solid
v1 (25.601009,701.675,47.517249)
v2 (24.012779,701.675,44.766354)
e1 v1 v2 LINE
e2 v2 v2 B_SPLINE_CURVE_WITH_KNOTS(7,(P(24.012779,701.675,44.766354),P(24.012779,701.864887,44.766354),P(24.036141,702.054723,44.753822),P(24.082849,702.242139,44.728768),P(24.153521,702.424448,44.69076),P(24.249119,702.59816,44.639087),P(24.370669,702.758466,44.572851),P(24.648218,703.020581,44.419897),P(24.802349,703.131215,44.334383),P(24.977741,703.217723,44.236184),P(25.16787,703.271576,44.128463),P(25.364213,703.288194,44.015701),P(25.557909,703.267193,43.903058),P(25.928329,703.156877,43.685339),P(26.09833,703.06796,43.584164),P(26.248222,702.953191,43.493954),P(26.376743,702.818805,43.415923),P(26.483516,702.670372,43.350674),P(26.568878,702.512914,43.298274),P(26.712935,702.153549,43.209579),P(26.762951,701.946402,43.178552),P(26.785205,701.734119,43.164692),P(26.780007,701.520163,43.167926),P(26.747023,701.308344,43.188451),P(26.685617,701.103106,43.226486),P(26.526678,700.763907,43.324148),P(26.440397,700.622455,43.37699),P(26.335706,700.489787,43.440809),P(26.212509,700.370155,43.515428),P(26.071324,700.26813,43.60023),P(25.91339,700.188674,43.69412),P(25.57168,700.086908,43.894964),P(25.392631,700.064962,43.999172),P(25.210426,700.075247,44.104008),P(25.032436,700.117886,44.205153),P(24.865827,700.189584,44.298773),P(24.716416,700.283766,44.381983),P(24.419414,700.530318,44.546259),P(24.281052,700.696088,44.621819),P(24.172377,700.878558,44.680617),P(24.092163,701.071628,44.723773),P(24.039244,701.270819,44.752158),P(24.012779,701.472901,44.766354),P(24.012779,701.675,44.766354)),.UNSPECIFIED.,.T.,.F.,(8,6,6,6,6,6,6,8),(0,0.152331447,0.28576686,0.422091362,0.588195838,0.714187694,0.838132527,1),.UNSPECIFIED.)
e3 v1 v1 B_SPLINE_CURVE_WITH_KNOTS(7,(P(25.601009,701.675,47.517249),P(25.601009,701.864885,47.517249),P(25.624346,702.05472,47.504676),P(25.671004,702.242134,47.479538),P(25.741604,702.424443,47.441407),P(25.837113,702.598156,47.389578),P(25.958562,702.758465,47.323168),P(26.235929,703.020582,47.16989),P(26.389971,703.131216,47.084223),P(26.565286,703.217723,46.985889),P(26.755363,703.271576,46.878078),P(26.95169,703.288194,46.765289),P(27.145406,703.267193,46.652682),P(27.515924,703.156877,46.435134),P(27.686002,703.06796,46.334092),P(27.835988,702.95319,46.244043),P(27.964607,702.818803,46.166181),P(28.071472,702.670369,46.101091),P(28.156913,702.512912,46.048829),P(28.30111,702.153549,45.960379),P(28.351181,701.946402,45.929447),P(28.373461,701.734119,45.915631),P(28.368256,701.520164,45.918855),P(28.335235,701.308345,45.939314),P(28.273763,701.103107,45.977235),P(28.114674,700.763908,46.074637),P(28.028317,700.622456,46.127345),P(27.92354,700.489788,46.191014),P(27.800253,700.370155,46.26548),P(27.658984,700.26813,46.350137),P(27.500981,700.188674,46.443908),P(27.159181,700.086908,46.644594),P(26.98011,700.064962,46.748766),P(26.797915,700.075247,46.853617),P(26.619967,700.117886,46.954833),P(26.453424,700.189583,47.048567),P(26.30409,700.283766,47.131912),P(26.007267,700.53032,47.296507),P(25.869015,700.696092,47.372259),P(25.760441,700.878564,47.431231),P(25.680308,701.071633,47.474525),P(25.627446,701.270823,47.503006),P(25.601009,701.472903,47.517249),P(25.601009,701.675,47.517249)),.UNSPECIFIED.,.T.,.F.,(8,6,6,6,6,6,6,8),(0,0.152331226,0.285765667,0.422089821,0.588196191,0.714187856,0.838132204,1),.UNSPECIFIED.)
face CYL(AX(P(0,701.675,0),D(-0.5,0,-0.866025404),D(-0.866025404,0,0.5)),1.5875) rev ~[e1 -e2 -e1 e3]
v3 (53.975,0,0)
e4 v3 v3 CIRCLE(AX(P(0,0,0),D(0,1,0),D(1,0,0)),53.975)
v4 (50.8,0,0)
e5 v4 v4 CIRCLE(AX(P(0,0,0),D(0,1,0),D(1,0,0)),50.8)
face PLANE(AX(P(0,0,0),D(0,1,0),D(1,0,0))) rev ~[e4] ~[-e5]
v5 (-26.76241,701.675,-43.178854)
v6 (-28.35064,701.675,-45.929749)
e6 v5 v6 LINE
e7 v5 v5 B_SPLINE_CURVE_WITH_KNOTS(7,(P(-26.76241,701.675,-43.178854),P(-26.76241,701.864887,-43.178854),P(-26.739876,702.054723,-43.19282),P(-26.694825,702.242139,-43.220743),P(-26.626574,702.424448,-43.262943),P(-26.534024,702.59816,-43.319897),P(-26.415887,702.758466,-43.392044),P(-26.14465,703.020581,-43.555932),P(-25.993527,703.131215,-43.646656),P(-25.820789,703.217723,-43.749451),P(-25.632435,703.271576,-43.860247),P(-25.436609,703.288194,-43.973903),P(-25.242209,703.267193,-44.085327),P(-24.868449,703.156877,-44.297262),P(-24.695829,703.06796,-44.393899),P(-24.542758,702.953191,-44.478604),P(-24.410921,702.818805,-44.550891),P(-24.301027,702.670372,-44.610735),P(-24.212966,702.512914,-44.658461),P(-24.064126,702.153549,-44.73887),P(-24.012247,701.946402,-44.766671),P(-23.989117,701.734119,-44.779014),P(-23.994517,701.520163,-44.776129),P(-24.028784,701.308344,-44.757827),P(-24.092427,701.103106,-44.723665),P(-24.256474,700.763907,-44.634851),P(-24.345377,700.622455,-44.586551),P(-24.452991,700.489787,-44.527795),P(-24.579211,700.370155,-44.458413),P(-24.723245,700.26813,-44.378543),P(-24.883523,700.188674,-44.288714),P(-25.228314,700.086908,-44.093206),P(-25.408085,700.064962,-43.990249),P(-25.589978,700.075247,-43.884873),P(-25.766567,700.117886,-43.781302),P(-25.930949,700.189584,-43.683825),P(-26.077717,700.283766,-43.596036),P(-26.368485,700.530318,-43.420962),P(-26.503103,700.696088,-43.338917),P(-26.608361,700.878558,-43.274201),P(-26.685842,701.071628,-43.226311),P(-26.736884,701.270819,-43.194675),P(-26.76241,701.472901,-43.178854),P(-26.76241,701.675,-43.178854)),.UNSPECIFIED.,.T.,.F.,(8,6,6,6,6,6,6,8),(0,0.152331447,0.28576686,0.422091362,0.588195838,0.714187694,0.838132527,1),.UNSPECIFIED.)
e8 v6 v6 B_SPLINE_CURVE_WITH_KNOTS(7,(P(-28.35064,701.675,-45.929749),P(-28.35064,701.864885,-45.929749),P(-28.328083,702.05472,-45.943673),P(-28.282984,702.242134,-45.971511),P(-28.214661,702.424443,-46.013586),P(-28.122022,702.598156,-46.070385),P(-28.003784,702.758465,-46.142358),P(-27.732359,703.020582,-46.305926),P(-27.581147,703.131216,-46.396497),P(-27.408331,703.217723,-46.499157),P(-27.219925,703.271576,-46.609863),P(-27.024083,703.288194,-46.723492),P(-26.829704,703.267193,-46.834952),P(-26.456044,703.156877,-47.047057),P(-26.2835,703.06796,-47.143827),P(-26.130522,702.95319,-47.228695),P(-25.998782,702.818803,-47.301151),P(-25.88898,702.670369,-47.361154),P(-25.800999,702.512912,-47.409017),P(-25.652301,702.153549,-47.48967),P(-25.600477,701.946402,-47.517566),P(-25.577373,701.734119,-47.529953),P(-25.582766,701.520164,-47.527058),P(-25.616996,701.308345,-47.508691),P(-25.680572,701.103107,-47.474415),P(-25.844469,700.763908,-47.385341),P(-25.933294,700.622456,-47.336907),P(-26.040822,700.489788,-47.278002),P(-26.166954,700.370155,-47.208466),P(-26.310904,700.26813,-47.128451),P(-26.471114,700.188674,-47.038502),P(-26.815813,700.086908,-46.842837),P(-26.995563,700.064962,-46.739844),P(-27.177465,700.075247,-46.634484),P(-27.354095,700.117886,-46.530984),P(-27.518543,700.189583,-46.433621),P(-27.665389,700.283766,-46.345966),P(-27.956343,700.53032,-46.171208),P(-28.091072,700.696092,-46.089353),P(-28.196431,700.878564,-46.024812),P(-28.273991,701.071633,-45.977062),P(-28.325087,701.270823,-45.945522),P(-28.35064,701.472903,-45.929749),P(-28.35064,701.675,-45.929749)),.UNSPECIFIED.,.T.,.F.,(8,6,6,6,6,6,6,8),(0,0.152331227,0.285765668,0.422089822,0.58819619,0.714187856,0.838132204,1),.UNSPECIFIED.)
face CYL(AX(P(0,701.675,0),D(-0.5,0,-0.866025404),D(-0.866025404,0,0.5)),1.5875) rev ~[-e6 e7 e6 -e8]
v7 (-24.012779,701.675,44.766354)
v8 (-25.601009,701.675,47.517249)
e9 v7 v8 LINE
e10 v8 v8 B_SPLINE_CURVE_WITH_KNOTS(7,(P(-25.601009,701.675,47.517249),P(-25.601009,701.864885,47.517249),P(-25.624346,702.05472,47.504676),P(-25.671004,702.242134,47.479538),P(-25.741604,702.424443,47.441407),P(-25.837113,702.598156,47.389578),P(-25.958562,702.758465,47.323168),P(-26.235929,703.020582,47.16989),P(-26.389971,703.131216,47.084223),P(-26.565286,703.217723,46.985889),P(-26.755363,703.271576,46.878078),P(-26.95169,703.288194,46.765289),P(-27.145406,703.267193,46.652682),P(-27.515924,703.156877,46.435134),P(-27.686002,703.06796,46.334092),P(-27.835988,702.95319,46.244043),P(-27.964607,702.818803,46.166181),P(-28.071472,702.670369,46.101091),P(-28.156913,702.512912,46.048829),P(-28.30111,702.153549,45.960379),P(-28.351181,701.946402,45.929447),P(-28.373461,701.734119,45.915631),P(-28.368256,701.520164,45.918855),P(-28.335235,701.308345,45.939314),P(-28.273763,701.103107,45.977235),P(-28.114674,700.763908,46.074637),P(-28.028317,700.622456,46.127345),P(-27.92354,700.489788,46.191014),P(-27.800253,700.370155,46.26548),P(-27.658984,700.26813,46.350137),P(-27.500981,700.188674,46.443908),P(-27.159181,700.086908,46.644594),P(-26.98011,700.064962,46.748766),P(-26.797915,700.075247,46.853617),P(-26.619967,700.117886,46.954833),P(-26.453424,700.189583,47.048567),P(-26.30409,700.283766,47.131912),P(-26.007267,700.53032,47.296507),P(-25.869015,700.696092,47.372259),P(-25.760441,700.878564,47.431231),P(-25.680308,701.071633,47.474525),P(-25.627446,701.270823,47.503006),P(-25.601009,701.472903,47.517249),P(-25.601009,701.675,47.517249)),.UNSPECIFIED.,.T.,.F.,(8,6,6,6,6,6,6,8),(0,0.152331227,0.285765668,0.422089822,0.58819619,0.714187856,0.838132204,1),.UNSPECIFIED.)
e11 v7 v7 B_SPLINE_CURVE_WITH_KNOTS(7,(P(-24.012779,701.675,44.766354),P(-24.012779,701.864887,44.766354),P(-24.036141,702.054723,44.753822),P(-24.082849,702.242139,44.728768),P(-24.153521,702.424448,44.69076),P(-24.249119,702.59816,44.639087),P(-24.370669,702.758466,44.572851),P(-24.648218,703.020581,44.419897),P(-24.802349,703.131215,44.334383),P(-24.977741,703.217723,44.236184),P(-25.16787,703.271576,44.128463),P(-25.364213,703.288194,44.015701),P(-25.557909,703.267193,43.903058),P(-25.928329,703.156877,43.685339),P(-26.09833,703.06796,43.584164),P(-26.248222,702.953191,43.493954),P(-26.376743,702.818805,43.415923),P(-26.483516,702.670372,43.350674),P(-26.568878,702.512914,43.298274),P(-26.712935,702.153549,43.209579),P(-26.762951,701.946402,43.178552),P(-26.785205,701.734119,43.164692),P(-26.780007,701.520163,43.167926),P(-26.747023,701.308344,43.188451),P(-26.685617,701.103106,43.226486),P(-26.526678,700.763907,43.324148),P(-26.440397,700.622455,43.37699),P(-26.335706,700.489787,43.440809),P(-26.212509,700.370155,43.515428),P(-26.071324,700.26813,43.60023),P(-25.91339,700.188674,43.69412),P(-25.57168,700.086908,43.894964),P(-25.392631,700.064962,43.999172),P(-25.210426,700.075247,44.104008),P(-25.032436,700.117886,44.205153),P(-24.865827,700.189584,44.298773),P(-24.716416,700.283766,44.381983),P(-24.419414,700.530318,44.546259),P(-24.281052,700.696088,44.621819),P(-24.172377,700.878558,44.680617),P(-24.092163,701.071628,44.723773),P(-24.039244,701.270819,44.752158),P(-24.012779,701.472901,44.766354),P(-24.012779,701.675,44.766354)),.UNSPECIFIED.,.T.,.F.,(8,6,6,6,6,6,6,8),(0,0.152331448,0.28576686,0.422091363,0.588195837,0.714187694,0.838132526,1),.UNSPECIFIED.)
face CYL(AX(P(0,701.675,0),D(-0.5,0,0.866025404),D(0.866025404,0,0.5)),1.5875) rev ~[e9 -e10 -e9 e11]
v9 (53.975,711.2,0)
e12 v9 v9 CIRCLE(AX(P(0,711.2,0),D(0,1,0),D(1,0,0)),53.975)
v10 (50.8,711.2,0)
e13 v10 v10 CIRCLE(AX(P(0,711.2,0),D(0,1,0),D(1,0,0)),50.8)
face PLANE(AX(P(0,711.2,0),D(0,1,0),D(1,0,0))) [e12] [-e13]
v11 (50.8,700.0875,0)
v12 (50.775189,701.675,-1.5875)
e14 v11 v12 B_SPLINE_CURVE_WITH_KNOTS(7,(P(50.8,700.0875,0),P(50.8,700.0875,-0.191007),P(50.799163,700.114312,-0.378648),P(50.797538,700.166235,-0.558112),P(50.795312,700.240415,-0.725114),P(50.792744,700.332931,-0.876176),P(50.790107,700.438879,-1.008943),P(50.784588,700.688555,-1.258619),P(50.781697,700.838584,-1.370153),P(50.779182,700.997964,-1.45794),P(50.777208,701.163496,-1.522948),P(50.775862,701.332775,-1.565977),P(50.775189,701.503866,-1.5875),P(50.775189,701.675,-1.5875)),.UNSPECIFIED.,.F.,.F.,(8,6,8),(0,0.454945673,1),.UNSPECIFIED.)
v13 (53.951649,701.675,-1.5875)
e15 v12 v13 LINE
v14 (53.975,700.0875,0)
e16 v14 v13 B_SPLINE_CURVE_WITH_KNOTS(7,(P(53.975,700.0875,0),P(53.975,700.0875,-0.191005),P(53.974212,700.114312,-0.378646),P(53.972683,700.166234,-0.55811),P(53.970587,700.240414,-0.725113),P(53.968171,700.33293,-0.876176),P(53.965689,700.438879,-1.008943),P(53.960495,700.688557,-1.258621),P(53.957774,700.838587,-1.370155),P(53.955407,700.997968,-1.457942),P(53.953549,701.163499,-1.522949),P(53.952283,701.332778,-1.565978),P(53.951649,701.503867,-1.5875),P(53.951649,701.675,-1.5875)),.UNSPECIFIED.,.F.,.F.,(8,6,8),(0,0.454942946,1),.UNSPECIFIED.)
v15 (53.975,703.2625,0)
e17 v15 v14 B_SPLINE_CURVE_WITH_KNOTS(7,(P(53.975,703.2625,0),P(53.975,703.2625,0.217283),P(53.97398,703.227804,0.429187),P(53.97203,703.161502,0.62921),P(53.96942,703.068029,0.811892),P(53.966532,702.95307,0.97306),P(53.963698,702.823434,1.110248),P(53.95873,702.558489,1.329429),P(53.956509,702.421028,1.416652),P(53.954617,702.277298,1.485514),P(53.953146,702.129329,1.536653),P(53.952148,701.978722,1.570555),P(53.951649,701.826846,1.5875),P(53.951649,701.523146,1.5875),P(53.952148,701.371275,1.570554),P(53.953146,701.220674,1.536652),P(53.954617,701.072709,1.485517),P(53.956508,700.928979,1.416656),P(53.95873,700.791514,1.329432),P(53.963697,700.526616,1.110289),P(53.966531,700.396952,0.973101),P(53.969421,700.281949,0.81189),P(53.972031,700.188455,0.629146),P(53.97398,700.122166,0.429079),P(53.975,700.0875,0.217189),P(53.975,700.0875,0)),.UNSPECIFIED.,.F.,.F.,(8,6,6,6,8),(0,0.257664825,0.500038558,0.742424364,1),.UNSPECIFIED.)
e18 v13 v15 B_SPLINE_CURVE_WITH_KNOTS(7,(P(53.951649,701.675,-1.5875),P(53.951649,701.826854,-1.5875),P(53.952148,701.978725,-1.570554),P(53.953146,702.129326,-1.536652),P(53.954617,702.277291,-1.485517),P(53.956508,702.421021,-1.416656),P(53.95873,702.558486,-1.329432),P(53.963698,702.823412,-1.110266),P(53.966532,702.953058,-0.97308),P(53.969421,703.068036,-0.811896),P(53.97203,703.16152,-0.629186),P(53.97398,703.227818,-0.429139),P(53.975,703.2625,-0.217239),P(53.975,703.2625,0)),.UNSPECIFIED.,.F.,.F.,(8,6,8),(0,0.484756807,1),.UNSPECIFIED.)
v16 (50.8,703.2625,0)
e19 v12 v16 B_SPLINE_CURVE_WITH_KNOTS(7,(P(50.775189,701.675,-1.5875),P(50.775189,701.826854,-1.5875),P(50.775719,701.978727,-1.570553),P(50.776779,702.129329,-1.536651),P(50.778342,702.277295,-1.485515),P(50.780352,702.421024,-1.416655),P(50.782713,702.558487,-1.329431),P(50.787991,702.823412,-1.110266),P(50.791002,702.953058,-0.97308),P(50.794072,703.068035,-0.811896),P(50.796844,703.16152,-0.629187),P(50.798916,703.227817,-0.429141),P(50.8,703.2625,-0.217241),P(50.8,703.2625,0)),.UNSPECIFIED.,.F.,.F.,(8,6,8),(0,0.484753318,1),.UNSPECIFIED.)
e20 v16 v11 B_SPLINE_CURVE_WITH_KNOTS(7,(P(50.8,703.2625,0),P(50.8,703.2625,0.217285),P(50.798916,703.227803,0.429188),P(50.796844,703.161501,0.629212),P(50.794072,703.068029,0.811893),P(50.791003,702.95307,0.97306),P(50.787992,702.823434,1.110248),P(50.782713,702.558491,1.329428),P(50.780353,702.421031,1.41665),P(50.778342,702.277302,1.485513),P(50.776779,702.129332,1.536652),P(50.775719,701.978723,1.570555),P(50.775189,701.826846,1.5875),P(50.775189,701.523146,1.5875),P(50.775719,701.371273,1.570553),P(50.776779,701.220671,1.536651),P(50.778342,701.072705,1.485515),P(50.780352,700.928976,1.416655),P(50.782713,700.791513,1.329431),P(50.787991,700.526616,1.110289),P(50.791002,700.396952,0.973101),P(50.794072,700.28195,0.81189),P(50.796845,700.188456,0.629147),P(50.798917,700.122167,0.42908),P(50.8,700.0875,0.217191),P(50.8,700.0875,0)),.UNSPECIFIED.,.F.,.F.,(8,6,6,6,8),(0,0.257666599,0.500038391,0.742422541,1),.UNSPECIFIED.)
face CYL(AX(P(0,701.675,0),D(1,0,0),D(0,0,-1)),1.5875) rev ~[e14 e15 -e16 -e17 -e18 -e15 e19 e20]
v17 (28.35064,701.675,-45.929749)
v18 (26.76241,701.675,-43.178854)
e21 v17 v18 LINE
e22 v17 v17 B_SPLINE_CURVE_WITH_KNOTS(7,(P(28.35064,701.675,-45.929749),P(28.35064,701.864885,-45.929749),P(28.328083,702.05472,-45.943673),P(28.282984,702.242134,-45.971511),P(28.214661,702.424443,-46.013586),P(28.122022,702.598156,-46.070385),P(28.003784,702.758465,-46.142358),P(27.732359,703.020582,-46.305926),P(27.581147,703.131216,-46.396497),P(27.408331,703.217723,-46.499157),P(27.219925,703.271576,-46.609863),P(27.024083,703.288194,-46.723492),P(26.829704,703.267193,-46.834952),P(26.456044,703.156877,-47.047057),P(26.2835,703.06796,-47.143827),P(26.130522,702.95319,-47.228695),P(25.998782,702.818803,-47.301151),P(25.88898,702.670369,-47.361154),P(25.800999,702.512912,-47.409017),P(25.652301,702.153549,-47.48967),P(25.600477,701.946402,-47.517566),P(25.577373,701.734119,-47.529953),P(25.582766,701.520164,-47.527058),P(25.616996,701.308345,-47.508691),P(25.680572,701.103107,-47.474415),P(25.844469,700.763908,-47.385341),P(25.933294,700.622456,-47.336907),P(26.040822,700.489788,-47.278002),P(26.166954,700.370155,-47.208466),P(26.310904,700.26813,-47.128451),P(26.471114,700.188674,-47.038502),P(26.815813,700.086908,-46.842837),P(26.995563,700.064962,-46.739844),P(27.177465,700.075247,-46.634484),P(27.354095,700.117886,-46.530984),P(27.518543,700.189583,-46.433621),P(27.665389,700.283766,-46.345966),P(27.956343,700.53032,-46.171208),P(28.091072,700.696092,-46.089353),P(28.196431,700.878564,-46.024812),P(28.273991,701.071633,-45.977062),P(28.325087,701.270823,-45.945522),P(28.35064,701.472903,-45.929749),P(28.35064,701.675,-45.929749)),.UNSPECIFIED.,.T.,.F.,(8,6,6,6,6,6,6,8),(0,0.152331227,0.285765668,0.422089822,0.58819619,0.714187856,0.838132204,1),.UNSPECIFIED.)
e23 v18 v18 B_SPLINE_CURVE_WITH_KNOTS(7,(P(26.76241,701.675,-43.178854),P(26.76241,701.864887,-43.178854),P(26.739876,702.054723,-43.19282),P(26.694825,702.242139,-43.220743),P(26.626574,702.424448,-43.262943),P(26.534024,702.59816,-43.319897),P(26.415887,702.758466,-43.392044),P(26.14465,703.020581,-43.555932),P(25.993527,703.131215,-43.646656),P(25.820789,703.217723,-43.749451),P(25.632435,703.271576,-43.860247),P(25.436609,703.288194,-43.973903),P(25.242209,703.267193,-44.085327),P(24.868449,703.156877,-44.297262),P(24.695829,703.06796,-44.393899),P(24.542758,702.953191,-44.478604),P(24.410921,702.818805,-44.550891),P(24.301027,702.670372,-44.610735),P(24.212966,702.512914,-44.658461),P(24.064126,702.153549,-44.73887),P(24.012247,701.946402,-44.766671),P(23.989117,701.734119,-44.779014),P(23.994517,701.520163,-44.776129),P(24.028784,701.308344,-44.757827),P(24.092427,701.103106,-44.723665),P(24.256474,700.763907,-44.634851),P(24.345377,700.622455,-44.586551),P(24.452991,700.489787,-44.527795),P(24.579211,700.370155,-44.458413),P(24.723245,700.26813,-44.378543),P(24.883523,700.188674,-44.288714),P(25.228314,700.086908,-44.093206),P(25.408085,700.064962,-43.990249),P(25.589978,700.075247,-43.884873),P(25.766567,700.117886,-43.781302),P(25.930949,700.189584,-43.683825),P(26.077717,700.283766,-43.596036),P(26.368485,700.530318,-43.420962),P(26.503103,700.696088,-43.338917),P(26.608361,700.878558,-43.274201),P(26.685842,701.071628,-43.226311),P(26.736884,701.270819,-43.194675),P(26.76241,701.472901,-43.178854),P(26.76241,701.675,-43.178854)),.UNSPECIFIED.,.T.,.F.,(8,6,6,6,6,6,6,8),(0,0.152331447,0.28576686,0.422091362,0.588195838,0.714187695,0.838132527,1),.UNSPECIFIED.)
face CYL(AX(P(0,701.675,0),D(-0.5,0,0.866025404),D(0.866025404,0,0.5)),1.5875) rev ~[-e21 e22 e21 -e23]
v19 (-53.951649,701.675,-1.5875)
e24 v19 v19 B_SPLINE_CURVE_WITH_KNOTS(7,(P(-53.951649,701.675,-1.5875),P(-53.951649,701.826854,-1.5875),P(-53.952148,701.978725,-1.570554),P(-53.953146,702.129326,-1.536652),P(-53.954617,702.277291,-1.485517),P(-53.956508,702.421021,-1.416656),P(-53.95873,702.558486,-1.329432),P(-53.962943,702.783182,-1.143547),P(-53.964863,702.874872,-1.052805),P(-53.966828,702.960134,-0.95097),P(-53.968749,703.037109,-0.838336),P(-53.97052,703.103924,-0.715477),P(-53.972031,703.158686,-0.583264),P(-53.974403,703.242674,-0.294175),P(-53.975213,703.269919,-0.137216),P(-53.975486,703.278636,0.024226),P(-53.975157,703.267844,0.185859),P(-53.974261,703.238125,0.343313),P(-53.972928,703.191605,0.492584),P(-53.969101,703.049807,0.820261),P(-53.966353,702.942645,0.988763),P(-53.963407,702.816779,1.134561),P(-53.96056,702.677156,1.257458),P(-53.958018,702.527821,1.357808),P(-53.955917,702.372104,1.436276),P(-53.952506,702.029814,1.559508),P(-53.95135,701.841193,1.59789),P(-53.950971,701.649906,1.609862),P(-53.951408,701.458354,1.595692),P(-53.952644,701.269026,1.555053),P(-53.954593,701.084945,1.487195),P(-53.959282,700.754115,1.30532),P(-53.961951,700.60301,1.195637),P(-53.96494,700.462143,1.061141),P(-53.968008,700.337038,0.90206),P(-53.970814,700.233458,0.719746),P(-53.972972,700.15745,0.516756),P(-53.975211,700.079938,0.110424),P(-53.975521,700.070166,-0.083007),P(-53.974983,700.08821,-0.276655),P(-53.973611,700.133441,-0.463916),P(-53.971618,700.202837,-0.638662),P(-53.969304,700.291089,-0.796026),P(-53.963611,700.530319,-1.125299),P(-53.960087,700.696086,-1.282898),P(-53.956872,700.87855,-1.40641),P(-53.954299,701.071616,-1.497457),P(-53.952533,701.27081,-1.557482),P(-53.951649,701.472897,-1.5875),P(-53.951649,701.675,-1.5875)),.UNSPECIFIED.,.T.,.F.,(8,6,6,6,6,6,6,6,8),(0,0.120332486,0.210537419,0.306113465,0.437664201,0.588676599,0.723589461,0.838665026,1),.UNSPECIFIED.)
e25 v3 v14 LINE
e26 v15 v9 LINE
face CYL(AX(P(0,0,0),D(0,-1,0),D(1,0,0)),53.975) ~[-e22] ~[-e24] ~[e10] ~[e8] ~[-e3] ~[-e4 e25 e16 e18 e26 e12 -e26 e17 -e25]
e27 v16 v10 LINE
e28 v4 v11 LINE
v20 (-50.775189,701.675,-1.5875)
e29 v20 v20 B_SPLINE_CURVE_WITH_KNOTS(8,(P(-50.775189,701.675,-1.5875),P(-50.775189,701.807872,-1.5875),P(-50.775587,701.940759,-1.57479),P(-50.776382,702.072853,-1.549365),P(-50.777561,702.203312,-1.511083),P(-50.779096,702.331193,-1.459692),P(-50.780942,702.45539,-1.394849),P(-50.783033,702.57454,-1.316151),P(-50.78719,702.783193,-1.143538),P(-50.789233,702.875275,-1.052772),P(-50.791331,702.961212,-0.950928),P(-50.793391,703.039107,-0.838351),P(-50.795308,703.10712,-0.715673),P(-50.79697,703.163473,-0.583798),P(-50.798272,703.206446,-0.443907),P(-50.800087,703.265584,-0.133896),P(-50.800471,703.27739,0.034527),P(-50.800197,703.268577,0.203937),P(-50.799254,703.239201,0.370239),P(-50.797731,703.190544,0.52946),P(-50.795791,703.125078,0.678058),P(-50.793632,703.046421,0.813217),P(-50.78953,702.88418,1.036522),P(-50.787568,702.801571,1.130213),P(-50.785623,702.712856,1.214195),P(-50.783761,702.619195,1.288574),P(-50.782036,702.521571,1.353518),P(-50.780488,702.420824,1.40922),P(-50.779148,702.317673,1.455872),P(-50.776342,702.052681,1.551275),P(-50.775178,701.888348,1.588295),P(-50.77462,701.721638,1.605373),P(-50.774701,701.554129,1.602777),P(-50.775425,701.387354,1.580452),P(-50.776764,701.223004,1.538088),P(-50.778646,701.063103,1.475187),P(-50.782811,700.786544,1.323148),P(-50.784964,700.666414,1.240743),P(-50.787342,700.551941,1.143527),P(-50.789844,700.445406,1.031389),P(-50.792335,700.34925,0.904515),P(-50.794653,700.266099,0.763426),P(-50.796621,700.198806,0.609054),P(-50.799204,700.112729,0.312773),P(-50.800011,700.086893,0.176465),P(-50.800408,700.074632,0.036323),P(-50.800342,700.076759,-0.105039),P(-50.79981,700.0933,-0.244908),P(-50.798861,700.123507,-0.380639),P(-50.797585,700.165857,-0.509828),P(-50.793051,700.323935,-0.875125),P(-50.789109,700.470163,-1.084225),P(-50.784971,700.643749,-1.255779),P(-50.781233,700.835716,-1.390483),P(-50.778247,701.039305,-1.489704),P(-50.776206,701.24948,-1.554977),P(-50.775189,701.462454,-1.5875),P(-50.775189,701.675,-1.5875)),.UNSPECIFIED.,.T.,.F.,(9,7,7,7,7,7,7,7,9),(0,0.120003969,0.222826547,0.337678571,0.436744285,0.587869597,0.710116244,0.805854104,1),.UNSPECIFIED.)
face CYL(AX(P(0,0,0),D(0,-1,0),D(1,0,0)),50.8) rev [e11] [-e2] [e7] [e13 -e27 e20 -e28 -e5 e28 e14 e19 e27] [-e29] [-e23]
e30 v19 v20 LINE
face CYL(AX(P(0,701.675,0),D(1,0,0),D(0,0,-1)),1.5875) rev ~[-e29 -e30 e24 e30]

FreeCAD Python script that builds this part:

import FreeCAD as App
import Part
import Sketcher
from FreeCAD import Vector
Q = App.Units.Quantity

doc = App.newDocument("Part")
body = doc.addObject("PartDesign::Body", "Body")

# Sketch on XZ plane
sketch1 = doc.addObject("Sketcher::SketchObject", "Sketch")
body.addObject(sketch1)
sketch1.AttachmentSupport = (doc.XZ_Plane, [""])
sketch1.MapMode = "FlatFace"
sketch1.addGeometry(Part.Circle(Vector(0, 0, 0), Vector(0, 0, 1), 54), False)
sketch1.addGeometry(Part.Circle(Vector(0, 0, 0), Vector(0, 0, 1), 51), False)
sketch1.addConstraint(Sketcher.Constraint("Coincident", 0, 3, -1, 1))
sketch1.addConstraint(Sketcher.Constraint("Coincident", 1, 3, -1, 1))
sketch1.addConstraint(Sketcher.Constraint("Diameter", 1, Q("4 in")))
sketch1.addConstraint(Sketcher.Constraint("Diameter", 0, Q("4.25 in")))
pad1 = doc.addObject("PartDesign::Pad", "Pad")
body.addObject(pad1)
pad1.Profile = sketch1
pad1.Length = Q("28 in")
pad1.Reversed = True

# Sketch on YZ plane
sketch2 = doc.addObject("Sketcher::SketchObject", "Sketch001")
body.addObject(sketch2)
sketch2.AttachmentSupport = (doc.YZ_Plane, [""])
sketch2.MapMode = "FlatFace"
sketch2.addGeometry(Part.Circle(Vector(701.7, 0, 0), Vector(0, 0, 1), 1.6), False)
sketch2.addConstraint(Sketcher.Constraint("PointOnObject", 0, 3, -1))
sketch2.addConstraint(Sketcher.Constraint("Diameter", 0, Q("0.125 in")))
sketch2.addConstraint(Sketcher.Constraint("DistanceX", -1, 1, 0, 3, Q("27.625 in")))
pocket1 = doc.addObject("PartDesign::Pocket", "Pocket")
body.addObject(pocket1)
pocket1.Profile = sketch2
pocket1.Length = 109.95
pocket1.Midplane = True
doc.recompute()

polarpattern = doc.addObject("PartDesign::PolarPattern", "PolarPattern")
body.addObject(polarpattern)
polarpattern.Originals = [pocket1]
polarpattern.Axis = (doc.Y_Axis, [""])
polarpattern.Angle = 360
polarpattern.Occurrences = 3
body.Tip = polarpattern

doc.recompute()
